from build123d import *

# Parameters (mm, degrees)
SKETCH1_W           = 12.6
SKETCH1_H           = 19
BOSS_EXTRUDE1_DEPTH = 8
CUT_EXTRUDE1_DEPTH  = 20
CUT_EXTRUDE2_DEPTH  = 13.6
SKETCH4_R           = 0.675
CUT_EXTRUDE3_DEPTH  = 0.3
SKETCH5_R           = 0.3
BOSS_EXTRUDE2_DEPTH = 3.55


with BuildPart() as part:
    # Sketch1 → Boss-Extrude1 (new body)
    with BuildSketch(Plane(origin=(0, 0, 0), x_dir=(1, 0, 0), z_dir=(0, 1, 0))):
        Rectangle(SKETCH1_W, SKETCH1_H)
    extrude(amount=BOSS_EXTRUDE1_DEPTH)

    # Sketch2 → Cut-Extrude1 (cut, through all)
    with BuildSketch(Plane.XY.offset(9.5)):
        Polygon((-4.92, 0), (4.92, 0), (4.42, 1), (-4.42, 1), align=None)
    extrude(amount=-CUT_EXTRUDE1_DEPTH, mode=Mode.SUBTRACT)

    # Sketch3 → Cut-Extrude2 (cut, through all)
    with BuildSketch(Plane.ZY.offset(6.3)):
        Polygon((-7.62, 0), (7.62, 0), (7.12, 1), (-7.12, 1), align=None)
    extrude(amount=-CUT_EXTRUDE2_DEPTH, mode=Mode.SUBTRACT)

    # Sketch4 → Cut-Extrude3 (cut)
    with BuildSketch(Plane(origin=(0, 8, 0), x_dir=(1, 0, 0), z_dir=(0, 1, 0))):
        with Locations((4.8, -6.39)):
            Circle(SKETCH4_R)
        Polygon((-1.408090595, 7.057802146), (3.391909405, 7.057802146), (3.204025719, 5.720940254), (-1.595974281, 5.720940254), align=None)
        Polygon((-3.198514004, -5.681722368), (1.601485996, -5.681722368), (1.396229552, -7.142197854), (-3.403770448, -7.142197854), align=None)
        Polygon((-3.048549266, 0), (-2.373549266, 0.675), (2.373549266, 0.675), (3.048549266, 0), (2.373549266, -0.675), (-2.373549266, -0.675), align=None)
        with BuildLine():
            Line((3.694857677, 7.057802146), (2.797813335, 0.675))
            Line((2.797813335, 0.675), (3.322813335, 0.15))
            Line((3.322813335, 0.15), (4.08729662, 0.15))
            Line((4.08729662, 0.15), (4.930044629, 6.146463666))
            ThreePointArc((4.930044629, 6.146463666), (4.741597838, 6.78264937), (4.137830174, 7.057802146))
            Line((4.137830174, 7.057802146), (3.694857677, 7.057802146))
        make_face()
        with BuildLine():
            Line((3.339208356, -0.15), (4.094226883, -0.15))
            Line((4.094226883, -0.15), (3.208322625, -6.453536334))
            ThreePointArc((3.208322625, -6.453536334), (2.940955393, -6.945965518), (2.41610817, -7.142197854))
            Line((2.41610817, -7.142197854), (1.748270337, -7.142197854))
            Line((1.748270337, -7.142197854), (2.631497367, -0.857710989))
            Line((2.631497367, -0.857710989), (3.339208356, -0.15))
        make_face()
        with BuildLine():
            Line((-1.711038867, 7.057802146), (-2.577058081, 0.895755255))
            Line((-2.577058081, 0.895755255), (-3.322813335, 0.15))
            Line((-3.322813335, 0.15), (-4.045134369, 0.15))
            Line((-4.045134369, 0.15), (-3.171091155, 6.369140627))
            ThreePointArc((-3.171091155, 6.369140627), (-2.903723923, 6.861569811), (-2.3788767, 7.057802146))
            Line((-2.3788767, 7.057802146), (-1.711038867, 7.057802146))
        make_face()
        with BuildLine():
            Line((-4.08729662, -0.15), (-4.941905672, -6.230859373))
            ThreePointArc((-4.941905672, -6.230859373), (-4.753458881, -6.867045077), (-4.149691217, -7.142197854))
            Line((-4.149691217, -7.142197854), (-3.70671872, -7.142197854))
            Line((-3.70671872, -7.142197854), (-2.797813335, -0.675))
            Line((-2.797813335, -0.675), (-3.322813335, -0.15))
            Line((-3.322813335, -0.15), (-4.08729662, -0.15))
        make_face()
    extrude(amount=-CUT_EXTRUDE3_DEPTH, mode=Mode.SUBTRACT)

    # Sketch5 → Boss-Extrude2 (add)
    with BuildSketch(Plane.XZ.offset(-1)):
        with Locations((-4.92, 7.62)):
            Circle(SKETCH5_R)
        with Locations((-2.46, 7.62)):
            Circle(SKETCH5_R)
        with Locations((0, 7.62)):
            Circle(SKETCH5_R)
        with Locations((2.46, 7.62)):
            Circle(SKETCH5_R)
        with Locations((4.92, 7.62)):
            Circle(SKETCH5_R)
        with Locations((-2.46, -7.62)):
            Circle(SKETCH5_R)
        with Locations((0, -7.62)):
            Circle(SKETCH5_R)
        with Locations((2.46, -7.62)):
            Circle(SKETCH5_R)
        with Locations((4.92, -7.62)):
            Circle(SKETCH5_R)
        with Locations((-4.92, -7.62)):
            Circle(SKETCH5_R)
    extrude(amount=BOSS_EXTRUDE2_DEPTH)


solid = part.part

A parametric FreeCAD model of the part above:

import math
import FreeCAD as App
import Part
import Sketcher
Q = App.Units.Quantity

doc = App.newDocument("Part")
body = doc.addObject("PartDesign::Body", "Body")

sketch1 = doc.addObject("Sketcher::SketchObject", "Sketch")
body.addObject(sketch1)
sketch1.AttachmentSupport = (doc.XZ_Plane, [""])
sketch1.MapMode = "FlatFace"
sketch1.addGeometry([
    Part.LineSegment(App.Vector(-6, -10, 0), App.Vector(-6, 10, 0)),
    Part.LineSegment(App.Vector(-6, 10, 0), App.Vector(6, 10, 0)),
    Part.LineSegment(App.Vector(6, 10, 0), App.Vector(6, -10, 0)),
    Part.LineSegment(App.Vector(6, -10, 0), App.Vector(-6, -10, 0)),
], False)
sketch1.addConstraint([
    Sketcher.Constraint("Coincident", 0, 2, 1, 1),
    Sketcher.Constraint("Coincident", 1, 2, 2, 1),
    Sketcher.Constraint("Coincident", 2, 2, 3, 1),
    Sketcher.Constraint("Coincident", 3, 2, 0, 1),
    Sketcher.Constraint("Vertical", 0),
    Sketcher.Constraint("Horizontal", 1),
    Sketcher.Constraint("Vertical", 2),
    Sketcher.Constraint("Horizontal", 3),
    Sketcher.Constraint("Symmetric", 0, 2, 2, 2, -1, 1),
    Sketcher.Constraint("DistanceY", 0, 1, 0, 2, Q("19 mm")),
    Sketcher.Constraint("DistanceX", 1, 1, 1, 2, Q("12.6 mm")),
])
pad1 = doc.addObject("PartDesign::Pad", "Pad")
body.addObject(pad1)
pad1.Profile = sketch1
pad1.Length = 8
pad1.Reversed = True

sketch2 = doc.addObject("Sketcher::SketchObject", "Sketch001")
body.addObject(sketch2)
sketch2.AttachmentSupport = (doc.XY_Plane, [""])
sketch2.MapMode = "FlatFace"
sketch2.AttachmentOffset = App.Placement(App.Vector(0, 0, 9.5), App.Rotation())
sketch2.addGeometry([
    Part.LineSegment(App.Vector(-4.9, 0, 0), App.Vector(4.9, 0, 0)),
    Part.LineSegment(App.Vector(4.9, 0, 0), App.Vector(4.4, 1, 0)),
    Part.LineSegment(App.Vector(4.4, 1, 0), App.Vector(-4.4, 1, 0)),
    Part.LineSegment(App.Vector(-4.4, 1, 0), App.Vector(-4.9, 0, 0)),
], False)
sketch2.addConstraint([
    Sketcher.Constraint("Coincident", 0, 2, 1, 1),
    Sketcher.Constraint("Coincident", 1, 2, 2, 1),
    Sketcher.Constraint("Coincident", 2, 2, 3, 1),
    Sketcher.Constraint("Coincident", 3, 2, 0, 1),
    Sketcher.Constraint("Horizontal", 0),
    Sketcher.Constraint("Horizontal", 2),
    Sketcher.Constraint("Symmetric", 0, 2, 3, 2, -1, 1),
    Sketcher.Constraint("Equal", 1, 3),
    Sketcher.Constraint("DistanceY", -1, 1, 1, 2, Q("1 mm")),
    Sketcher.Constraint("DistanceX", 0, 1, 0, 2, Q("9.84 mm")),
    Sketcher.Constraint("DistanceX", 2, 2, 2, 1, Q("8.84 mm")),
])
pocket1 = doc.addObject("PartDesign::Pocket", "Pocket")
body.addObject(pocket1)
pocket1.Profile = sketch2
pocket1.Type = "ThroughAll"

sketch3 = doc.addObject("Sketcher::SketchObject", "Sketch002")
body.addObject(sketch3)
sketch3.AttachmentSupport = (doc.YZ_Plane, [""])
sketch3.MapMode = "FlatFace"
sketch3.AttachmentOffset = App.Placement(App.Vector(0, 0, -6.3), App.Rotation())
sketch3.addGeometry([
    Part.LineSegment(App.Vector(0, -7.6, 0), App.Vector(0, 7.6, 0)),
    Part.LineSegment(App.Vector(0, 7.6, 0), App.Vector(1, 7.1, 0)),
    Part.LineSegment(App.Vector(1, 7.1, 0), App.Vector(1, -7.1, 0)),
    Part.LineSegment(App.Vector(1, -7.1, 0), App.Vector(0, -7.6, 0)),
], False)
sketch3.addConstraint([
    Sketcher.Constraint("Coincident", 0, 2, 1, 1),
    Sketcher.Constraint("Coincident", 1, 2, 2, 1),
    Sketcher.Constraint("Coincident", 2, 2, 3, 1),
    Sketcher.Constraint("Coincident", 3, 2, 0, 1),
    Sketcher.Constraint("Vertical", 0),
    Sketcher.Constraint("Vertical", 2),
    Sketcher.Constraint("Symmetric", 0, 2, 3, 2, -1, 1),
    Sketcher.Constraint("Equal", 1, 3),
    Sketcher.Constraint("DistanceX", -1, 1, 1, 2, Q("1 mm")),
    Sketcher.Constraint("DistanceY", 0, 1, 0, 2, Q("15.24 mm")),
    Sketcher.Constraint("DistanceY", 2, 2, 2, 1, Q("14.24 mm")),
])
pocket2 = doc.addObject("PartDesign::Pocket", "Pocket001")
body.addObject(pocket2)
pocket2.Profile = sketch3
pocket2.Type = "ThroughAll"
pocket2.Reversed = True

sketch4 = doc.addObject("Sketcher::SketchObject", "Sketch003")
body.addObject(sketch4)
sketch4.AttachmentSupport = (doc.XZ_Plane, [""])
sketch4.MapMode = "FlatFace"
sketch4.AttachmentOffset = App.Placement(App.Vector(0, 0, -8), App.Rotation())
sketch4.addGeometry([
    Part.Circle(App.Vector(4.8, 6.39, 0), App.Vector(0, 0, 1), 0.68),
    Part.LineSegment(App.Vector(3.39, -7.06, 0), App.Vector(-1.41, -7.06, 0)),
    Part.LineSegment(App.Vector(-1.41, -7.06, 0), App.Vector(-1.6, -5.72, 0)),
    Part.LineSegment(App.Vector(-1.6, -5.72, 0), App.Vector(3.2, -5.72, 0)),
    Part.LineSegment(App.Vector(3.2, -5.72, 0), App.Vector(3.39, -7.06, 0)),
    Part.LineSegment(App.Vector(1.6, 5.68, 0), App.Vector(-3.2, 5.68, 0)),
    Part.LineSegment(App.Vector(-3.2, 5.68, 0), App.Vector(-3.4, 7.14, 0)),
    Part.LineSegment(App.Vector(-3.4, 7.14, 0), App.Vector(1.4, 7.14, 0)),
    Part.LineSegment(App.Vector(1.4, 7.14, 0), App.Vector(1.6, 5.68, 0)),
    Part.LineSegment(App.Vector(-2.37, -0.68, 0), App.Vector(-3.05, 0, 0)),
    Part.LineSegment(App.Vector(-3.05, 0, 0), App.Vector(-2.37, 0.68, 0)),
    Part.LineSegment(App.Vector(-2.37, 0.68, 0), App.Vector(2.37, 0.68, 0)),
    Part.LineSegment(App.Vector(2.37, 0.68, 0), App.Vector(3.05, 0, 0)),
    Part.LineSegment(App.Vector(3.05, 0, 0), App.Vector(2.37, -0.68, 0)),
    Part.LineSegment(App.Vector(2.37, -0.68, 0), App.Vector(-2.37, -0.68, 0)),
    Part.LineSegment(App.Vector(3.69, -7.06, 0), App.Vector(2.8, -0.68, 0)),
    Part.LineSegment(App.Vector(2.8, -0.68, 0), App.Vector(3.32, -0.15, 0)),
    Part.LineSegment(App.Vector(3.32, -0.15, 0), App.Vector(4.09, -0.15, 0)),
    Part.LineSegment(App.Vector(4.09, -0.15, 0), App.Vector(4.93, -6.15, 0)),
    Part.ArcOfCircle(Part.Circle(App.Vector(4.14, -6.26, 0), App.Vector(0, 0, 1), 0.8), math.radians(-90), math.radians(8)),
    Part.LineSegment(App.Vector(4.14, -7.06, 0), App.Vector(3.69, -7.06, 0)),
    Part.LineSegment(App.Vector(4.09, 0.15, 0), App.Vector(3.34, 0.15, 0)),
    Part.LineSegment(App.Vector(3.34, 0.15, 0), App.Vector(2.63, 0.86, 0)),
    Part.LineSegment(App.Vector(2.63, 0.86, 0), App.Vector(1.75, 7.14, 0)),
    Part.LineSegment(App.Vector(1.75, 7.14, 0), App.Vector(2.42, 7.14, 0)),
    Part.ArcOfCircle(Part.Circle(App.Vector(2.42, 6.34, 0), App.Vector(0, 0, 1), 0.8), math.radians(8), math.radians(90)),
    Part.LineSegment(App.Vector(3.21, 6.45, 0), App.Vector(4.09, 0.15, 0)),
    Part.LineSegment(App.Vector(-2.58, -0.9, 0), App.Vector(-1.71, -7.06, 0)),
    Part.LineSegment(App.Vector(-1.71, -7.06, 0), App.Vector(-2.38, -7.06, 0)),
    Part.ArcOfCircle(Part.Circle(App.Vector(-2.38, -6.26, 0), App.Vector(0, 0, 1), 0.8), math.radians(-172), math.radians(-90)),
    Part.LineSegment(App.Vector(-3.17, -6.37, 0), App.Vector(-4.05, -0.15, 0)),
    Part.LineSegment(App.Vector(-4.05, -0.15, 0), App.Vector(-3.32, -0.15, 0)),
    Part.LineSegment(App.Vector(-3.32, -0.15, 0), App.Vector(-2.58, -0.9, 0)),
    Part.LineSegment(App.Vector(-4.09, 0.15, 0), App.Vector(-4.94, 6.23, 0)),
    Part.ArcOfCircle(Part.Circle(App.Vector(-4.15, 6.34, 0), App.Vector(0, 0, 1), 0.8), math.radians(90), math.radians(188)),
    Part.LineSegment(App.Vector(-4.15, 7.14, 0), App.Vector(-3.71, 7.14, 0)),
    Part.LineSegment(App.Vector(-3.71, 7.14, 0), App.Vector(-2.8, 0.68, 0)),
    Part.LineSegment(App.Vector(-2.8, 0.68, 0), App.Vector(-3.32, 0.15, 0)),
    Part.LineSegment(App.Vector(-3.32, 0.15, 0), App.Vector(-4.09, 0.15, 0)),
], False)
sketch4.addConstraint([
    Sketcher.Constraint("Coincident", 1, 2, 2, 1),
    Sketcher.Constraint("Coincident", 2, 2, 3, 1),
    Sketcher.Constraint("Coincident", 3, 2, 4, 1),
    Sketcher.Constraint("Coincident", 4, 2, 1, 1),
    Sketcher.Constraint("Coincident", 5, 2, 6, 1),
    Sketcher.Constraint("Coincident", 6, 2, 7, 1),
    Sketcher.Constraint("Coincident", 7, 2, 8, 1),
    Sketcher.Constraint("Coincident", 8, 2, 5, 1),
    Sketcher.Constraint("Coincident", 9, 2, 10, 1),
    Sketcher.Constraint("Coincident", 10, 2, 11, 1),
    Sketcher.Constraint("Coincident", 11, 2, 12, 1),
    Sketcher.Constraint("Coincident", 12, 2, 13, 1),
    Sketcher.Constraint("Coincident", 13, 2, 14, 1),
    Sketcher.Constraint("Coincident", 14, 2, 9, 1),
    Sketcher.Constraint("Coincident", 15, 2, 16, 1),
    Sketcher.Constraint("Coincident", 16, 2, 17, 1),
    Sketcher.Constraint("Coincident", 17, 2, 18, 1),
    Sketcher.Constraint("Tangent", 18, 2, 19, 2),
    Sketcher.Constraint("Tangent", 19, 1, 20, 1),
    Sketcher.Constraint("Coincident", 20, 2, 15, 1),
    Sketcher.Constraint("Coincident", 21, 2, 22, 1),
    Sketcher.Constraint("Coincident", 22, 2, 23, 1),
    Sketcher.Constraint("Coincident", 23, 2, 24, 1),
    Sketcher.Constraint("Tangent", 24, 2, 25, 2),
    Sketcher.Constraint("Tangent", 25, 1, 26, 1),
    Sketcher.Constraint("Coincident", 26, 2, 21, 1),
    Sketcher.Constraint("Coincident", 27, 2, 28, 1),
    Sketcher.Constraint("Tangent", 28, 2, 29, 2),
    Sketcher.Constraint("Tangent", 29, 1, 30, 1),
    Sketcher.Constraint("Coincident", 30, 2, 31, 1),
    Sketcher.Constraint("Coincident", 31, 2, 32, 1),
    Sketcher.Constraint("Coincident", 32, 2, 27, 1),
    Sketcher.Constraint("Tangent", 33, 2, 34, 2),
    Sketcher.Constraint("Tangent", 34, 1, 35, 1),
    Sketcher.Constraint("Coincident", 35, 2, 36, 1),
    Sketcher.Constraint("Coincident", 36, 2, 37, 1),
    Sketcher.Constraint("Coincident", 37, 2, 38, 1),
    Sketcher.Constraint("Coincident", 38, 2, 33, 1),
    Sketcher.Constraint("Horizontal", 1),
    Sketcher.Constraint("Horizontal", 3),
    Sketcher.Constraint("Horizontal", 5),
    Sketcher.Constraint("Horizontal", 7),
    Sketcher.Constraint("Horizontal", 11),
    Sketcher.Constraint("Horizontal", 14),
    Sketcher.Constraint("Horizontal", 17),
    Sketcher.Constraint("Horizontal", 20),
    Sketcher.Constraint("Horizontal", 21),
    Sketcher.Constraint("Horizontal", 24),
    Sketcher.Constraint("Horizontal", 28),
    Sketcher.Constraint("Horizontal", 31),
    Sketcher.Constraint("Horizontal", 35),
    Sketcher.Constraint("Horizontal", 38),
    Sketcher.Constraint("Equal", 19, 25),
    Sketcher.Constraint("Equal", 25, 29),
    Sketcher.Constraint("Equal", 29, 34),
    Sketcher.Constraint("Symmetric", 9, 2, 12, 2, -1, 1),
    Sketcher.Constraint("Symmetric", 10, 2, 13, 2, -1, 1),
    Sketcher.Constraint("Symmetric", 15, 2, 36, 2, -1, 1),
    Sketcher.Constraint("Symmetric", 16, 2, 37, 2, -1, 1),
    Sketcher.Constraint("Symmetric", 16, 2, 31, 2, -2),
    Sketcher.Constraint("PointOnObject", 9, 2, -1),
    Sketcher.Constraint("Parallel", 2, 4),
    Sketcher.Constraint("Parallel", 4, 6),
    Sketcher.Constraint("Parallel", 6, 8),
    Sketcher.Constraint("Perpendicular", 9, 10),
    Sketcher.Constraint("Perpendicular", 10, 12),
    Sketcher.Constraint("Parallel", 8, 15),
    Sketcher.Constraint("Parallel", 13, 16),
    Sketcher.Constraint("Parallel", 15, 18),
    Sketcher.Constraint("Perpendicular", 16, 22),
    Sketcher.Constraint("Parallel", 18, 23),
    Sketcher.Constraint("Parallel", 23, 26),
    Sketcher.Constraint("Parallel", 26, 27),
    Sketcher.Constraint("Parallel", 27, 30),
    Sketcher.Constraint("Parallel", 22, 32),
    Sketcher.Constraint("Parallel", 30, 33),
    Sketcher.Constraint("Parallel", 33, 36),
    Sketcher.Constraint("Horizontal", 19, 3, 29, 3),
    Sketcher.Constraint("Horizontal", 25, 3, 34, 3),
    Sketcher.Constraint("Horizontal", 14, 2, 15, 2),
    Sketcher.Constraint("Horizontal", 4, 2, 19, 1),
    Sketcher.Constraint("Horizontal", 7, 2, 23, 2),
    Sketcher.Constraint("Horizontal", 26, 2, 37, 2),
    Sketcher.Constraint("Vertical", 11, 2, 13, 2),
    Sketcher.Constraint("Equal", 3, 5),
    Sketcher.Constraint("Equal", 24, 28),
    Sketcher.Constraint("Equal", 20, 35),
    Sketcher.Constraint("Radius", 19, Q("0.8 mm")),
    Sketcher.Constraint("Diameter", 0, Q("1.35 mm")),
    Sketcher.Constraint("Angle", 2, Q("98 deg")),
    Sketcher.Constraint("DistanceX", 1, 2, 1, 1, Q("4.8 mm")),
    Sketcher.Constraint("DistanceX", -1, 1, 0, 3, Q("4.8 mm")),
    Sketcher.Constraint("DistanceY", 19, 3, 25, 3, Q("12.6 mm")),
    Sketcher.Constraint("DistanceY", 16, 2, 21, 2, Q("0.3 mm")),
    Sketcher.Constraint("Distance", 2, Q("1.35 mm")),
    Sketcher.Constraint("DistanceY", -1, 1, 0, 3, Q("6.39 mm")),
    Sketcher.Constraint("DistanceY", 13, 2, 11, 2, Q("1.35 mm")),
    Sketcher.Constraint("DistanceX", 11, 1, 11, 2, Q("4.747099 mm")),
    Sketcher.Constraint("DistanceX", 29, 1, 1, 2, Q("1.763001 mm")),
    Sketcher.Constraint("DistanceX", 21, 2, 21, 1, Q("0.755019 mm")),
    Sketcher.Constraint("DistanceX", 31, 1, 31, 2, Q("0.722321 mm")),
    Sketcher.Constraint("DistanceX", 34, 3, 25, 3, Q("6.565799 mm")),
    Sketcher.Constraint("DistanceX", 34, 3, 1, 2, Q("2.741601 mm")),
    Sketcher.Constraint("Distance", 6, Q("1.474828 mm")),
    Sketcher.Constraint("Distance", 15, Q("6.44553 mm")),
    Sketcher.Constraint("Distance", 23, Q("6.346248 mm")),
    Sketcher.Constraint("DistanceX", -1, 1, 19, 3, Q("4.13783 mm")),
    Sketcher.Constraint("DistanceX", 6, 2, -1, 1, Q("3.40377 mm")),
])
pocket3 = doc.addObject("PartDesign::Pocket", "Pocket002")
body.addObject(pocket3)
pocket3.Profile = sketch4
pocket3.Length = 0.3
pocket3.Reversed = True

sketch5 = doc.addObject("Sketcher::SketchObject", "Sketch004")
body.addObject(sketch5)
sketch5.AttachmentSupport = (doc.XZ_Plane, [""])
sketch5.MapMode = "FlatFace"
sketch5.AttachmentOffset = App.Placement(App.Vector(0, 0, -1), App.Rotation())
sketch5.addGeometry([
    Part.Circle(App.Vector(-4.92, 7.62, 0), App.Vector(0, 0, 1), 0.3),
    Part.Circle(App.Vector(-2.46, 7.62, 0), App.Vector(0, 0, 1), 0.3),
    Part.Circle(App.Vector(0, 7.62, 0), App.Vector(0, 0, 1), 0.3),
    Part.Circle(App.Vector(2.46, 7.62, 0), App.Vector(0, 0, 1), 0.3),
    Part.Circle(App.Vector(4.92, 7.62, 0), App.Vector(0, 0, 1), 0.3),
    Part.Circle(App.Vector(-2.46, -7.62, 0), App.Vector(0, 0, 1), 0.3),
    Part.Circle(App.Vector(0, -7.62, 0), App.Vector(0, 0, 1), 0.3),
    Part.Circle(App.Vector(2.46, -7.62, 0), App.Vector(0, 0, 1), 0.3),
    Part.Circle(App.Vector(4.92, -7.62, 0), App.Vector(0, 0, 1), 0.3),
    Part.Circle(App.Vector(-4.92, -7.62, 0), App.Vector(0, 0, 1), 0.3),
], False)
sketch5.addConstraint([
    Sketcher.Constraint("Equal", 0, 1),
    Sketcher.Constraint("Equal", 1, 2),
    Sketcher.Constraint("Equal", 2, 3),
    Sketcher.Constraint("Equal", 3, 4),
    Sketcher.Constraint("Equal", 4, 5),
    Sketcher.Constraint("Equal", 5, 6),
    Sketcher.Constraint("Equal", 6, 7),
    Sketcher.Constraint("Equal", 7, 8),
    Sketcher.Constraint("Equal", 8, 9),
    Sketcher.Constraint("Symmetric", 3, 3, 5, 3, -1, 1),
    Sketcher.Constraint("Symmetric", 2, 3, 6, 3, -1, 1),
    Sketcher.Constraint("Symmetric", 1, 3, 7, 3, -1, 1),
    Sketcher.Constraint("Symmetric", 0, 3, 8, 3, -1, 1),
    Sketcher.Constraint("Symmetric", 4, 3, 9, 3, -1, 1),
    Sketcher.Constraint("Symmetric", 1, 3, 3, 3, -2),
    Sketcher.Constraint("Symmetric", 0, 3, 4, 3, -2),
    Sketcher.Constraint("PointOnObject", 2, 3, -2),
    Sketcher.Constraint("Horizontal", 0, 3, 1, 3),
    Sketcher.Constraint("Horizontal", 1, 3, 2, 3),
    Sketcher.Constraint("Diameter", 0, Q("0.6 mm")),
    Sketcher.Constraint("DistanceX", 0, 3, -1, 1, Q("4.92 mm")),
    Sketcher.Constraint("DistanceY", -1, 1, 0, 3, Q("7.62 mm")),
    Sketcher.Constraint("DistanceX", 1, 3, -1, 1, Q("2.46 mm")),
])
pad2 = doc.addObject("PartDesign::Pad", "Pad001")
body.addObject(pad2)
pad2.Profile = sketch5
pad2.Length = 3.55

doc.recompute()
